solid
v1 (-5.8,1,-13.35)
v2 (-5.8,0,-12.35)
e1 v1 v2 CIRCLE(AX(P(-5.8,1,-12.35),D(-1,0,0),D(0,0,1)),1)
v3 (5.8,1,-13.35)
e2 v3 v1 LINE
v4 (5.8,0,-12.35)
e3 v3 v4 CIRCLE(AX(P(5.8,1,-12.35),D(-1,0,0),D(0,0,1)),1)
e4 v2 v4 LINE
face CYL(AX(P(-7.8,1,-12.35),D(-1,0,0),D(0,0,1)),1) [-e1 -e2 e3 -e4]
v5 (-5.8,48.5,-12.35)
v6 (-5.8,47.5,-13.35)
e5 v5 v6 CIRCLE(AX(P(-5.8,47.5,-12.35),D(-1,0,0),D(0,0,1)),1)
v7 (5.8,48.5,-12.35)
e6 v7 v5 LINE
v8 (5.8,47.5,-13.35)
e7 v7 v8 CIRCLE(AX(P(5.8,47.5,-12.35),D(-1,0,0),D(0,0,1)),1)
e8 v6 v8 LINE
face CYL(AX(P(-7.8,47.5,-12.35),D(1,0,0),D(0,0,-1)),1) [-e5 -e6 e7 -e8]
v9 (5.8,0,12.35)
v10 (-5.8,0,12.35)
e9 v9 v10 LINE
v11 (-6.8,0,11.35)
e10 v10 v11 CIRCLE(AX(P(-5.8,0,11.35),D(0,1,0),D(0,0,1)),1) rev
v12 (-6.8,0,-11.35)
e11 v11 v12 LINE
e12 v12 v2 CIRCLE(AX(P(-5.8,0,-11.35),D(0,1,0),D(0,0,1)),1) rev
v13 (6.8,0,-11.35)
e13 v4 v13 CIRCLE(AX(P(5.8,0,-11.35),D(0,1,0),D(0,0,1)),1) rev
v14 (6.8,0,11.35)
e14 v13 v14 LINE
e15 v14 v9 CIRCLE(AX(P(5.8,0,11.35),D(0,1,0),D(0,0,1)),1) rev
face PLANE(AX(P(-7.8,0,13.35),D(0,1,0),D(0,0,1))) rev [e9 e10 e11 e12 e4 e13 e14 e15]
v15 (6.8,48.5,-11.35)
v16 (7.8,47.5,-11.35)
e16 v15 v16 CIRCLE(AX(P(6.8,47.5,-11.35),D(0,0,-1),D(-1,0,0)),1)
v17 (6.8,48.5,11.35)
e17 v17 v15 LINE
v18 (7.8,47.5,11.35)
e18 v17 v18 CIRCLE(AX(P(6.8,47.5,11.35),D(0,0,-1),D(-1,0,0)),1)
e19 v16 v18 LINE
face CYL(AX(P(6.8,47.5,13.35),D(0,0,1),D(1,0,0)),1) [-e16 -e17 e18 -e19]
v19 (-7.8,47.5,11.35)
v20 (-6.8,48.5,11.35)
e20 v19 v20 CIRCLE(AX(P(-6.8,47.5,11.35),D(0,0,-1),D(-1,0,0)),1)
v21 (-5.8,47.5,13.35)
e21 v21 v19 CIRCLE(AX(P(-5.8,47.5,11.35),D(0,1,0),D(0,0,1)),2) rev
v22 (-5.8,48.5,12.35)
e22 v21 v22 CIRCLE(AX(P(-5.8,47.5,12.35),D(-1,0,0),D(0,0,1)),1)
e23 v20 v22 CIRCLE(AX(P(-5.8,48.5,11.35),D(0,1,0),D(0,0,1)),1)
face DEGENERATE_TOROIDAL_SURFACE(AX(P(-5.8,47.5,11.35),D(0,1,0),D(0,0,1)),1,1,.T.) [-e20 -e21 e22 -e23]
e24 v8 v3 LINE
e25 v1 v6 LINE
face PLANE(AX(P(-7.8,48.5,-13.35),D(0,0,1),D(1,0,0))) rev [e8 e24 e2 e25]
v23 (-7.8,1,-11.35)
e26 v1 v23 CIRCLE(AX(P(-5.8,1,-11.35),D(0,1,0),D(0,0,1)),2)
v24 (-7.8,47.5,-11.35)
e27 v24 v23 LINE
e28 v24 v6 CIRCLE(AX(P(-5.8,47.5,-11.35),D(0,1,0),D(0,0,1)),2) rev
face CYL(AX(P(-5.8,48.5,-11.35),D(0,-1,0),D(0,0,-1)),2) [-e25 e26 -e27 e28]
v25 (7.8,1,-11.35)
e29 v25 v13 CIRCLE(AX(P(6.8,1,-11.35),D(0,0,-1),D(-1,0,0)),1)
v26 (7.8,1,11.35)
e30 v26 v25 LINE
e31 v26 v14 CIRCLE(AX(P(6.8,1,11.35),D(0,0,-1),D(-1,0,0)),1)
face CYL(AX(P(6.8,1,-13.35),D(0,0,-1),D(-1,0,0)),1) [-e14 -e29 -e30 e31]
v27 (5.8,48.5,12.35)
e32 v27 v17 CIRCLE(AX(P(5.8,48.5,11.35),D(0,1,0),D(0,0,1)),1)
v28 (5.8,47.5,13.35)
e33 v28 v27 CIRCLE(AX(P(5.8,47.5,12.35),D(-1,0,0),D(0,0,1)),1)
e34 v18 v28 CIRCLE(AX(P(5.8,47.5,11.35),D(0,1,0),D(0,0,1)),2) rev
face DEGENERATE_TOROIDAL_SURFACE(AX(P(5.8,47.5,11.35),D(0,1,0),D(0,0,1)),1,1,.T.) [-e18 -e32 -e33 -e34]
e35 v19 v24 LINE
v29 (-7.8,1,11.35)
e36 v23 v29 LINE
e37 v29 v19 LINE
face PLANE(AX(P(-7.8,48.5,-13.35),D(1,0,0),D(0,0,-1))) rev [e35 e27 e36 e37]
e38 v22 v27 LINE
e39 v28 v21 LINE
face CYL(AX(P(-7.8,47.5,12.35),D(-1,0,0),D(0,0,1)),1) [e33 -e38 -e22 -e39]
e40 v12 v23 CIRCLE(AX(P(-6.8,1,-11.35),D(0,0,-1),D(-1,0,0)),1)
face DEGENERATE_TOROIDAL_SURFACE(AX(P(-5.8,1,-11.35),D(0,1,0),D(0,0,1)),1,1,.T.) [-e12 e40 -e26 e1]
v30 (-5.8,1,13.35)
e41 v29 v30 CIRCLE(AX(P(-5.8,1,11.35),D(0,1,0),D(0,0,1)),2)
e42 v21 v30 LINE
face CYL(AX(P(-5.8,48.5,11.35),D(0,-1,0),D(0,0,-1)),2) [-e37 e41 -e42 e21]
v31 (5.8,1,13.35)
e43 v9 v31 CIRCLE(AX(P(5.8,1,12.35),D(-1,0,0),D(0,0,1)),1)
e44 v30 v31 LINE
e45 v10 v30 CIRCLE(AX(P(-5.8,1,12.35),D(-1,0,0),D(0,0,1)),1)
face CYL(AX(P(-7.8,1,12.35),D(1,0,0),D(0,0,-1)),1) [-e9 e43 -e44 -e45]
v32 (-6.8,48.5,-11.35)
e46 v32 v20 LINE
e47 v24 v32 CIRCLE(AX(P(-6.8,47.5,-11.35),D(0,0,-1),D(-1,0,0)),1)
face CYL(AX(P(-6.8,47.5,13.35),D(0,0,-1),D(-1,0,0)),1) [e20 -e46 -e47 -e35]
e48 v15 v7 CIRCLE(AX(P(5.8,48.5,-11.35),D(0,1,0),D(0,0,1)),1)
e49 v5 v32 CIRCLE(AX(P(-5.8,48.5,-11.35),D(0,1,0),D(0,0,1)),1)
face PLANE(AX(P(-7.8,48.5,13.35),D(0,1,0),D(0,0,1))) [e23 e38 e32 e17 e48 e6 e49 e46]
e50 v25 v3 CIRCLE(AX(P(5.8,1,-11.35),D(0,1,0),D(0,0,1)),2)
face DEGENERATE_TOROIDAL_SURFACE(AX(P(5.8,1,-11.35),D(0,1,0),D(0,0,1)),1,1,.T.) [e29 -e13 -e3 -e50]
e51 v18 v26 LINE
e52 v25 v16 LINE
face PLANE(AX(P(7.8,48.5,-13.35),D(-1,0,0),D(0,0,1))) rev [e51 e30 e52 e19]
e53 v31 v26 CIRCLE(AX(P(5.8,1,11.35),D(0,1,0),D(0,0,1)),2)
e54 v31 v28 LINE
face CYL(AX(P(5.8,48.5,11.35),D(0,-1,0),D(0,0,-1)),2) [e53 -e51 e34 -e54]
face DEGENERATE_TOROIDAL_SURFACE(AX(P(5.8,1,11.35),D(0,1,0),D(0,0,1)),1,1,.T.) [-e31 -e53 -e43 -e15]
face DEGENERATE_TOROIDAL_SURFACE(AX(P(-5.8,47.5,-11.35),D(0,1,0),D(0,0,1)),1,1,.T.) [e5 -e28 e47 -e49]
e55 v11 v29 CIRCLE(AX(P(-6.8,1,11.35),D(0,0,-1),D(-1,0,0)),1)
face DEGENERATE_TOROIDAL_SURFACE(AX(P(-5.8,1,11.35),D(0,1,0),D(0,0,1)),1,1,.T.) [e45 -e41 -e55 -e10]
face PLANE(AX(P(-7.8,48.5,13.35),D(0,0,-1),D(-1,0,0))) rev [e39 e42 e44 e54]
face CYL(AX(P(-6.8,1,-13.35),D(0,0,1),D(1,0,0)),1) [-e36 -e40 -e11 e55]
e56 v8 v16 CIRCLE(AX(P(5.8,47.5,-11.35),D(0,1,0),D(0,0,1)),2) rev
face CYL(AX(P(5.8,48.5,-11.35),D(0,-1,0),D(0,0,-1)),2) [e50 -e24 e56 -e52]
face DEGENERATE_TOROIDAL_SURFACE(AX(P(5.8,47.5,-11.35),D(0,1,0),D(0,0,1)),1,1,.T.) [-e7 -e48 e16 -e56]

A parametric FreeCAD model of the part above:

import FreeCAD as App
import Part
import Sketcher


def edges_at(feature, points):
    """Names of the edges that pass closest to the given points."""
    edges = feature.Shape.Edges
    near = lambda p: min(range(len(edges)), key=lambda i: edges[i].distToShape(Part.Vertex(*p))[0])
    return sorted({f"Edge{near(p) + 1}" for p in points})

doc = App.newDocument("Part")
body = doc.addObject("PartDesign::Body", "Body")

# Sketch on XZ plane
sketch1 = body.newObject("Sketcher::SketchObject", "Sketch")
sketch1.AttachmentSupport = (doc.getObject("XZ_Plane"), [""])
sketch1.MapMode = "FlatFace"
sketch1.addGeometry(Part.LineSegment(App.Vector(-8, -13, 0), App.Vector(-8, 13, 0)), False)
sketch1.addGeometry(Part.LineSegment(App.Vector(-8, 13, 0), App.Vector(8, 13, 0)), False)
sketch1.addGeometry(Part.LineSegment(App.Vector(8, 13, 0), App.Vector(8, -13, 0)), False)
sketch1.addGeometry(Part.LineSegment(App.Vector(8, -13, 0), App.Vector(-8, -13, 0)), False)
sketch1.addConstraint(Sketcher.Constraint("Coincident", 0, 2, 1, 1))
sketch1.addConstraint(Sketcher.Constraint("Coincident", 1, 2, 2, 1))
sketch1.addConstraint(Sketcher.Constraint("Coincident", 2, 2, 3, 1))
sketch1.addConstraint(Sketcher.Constraint("Coincident", 3, 2, 0, 1))
sketch1.addConstraint(Sketcher.Constraint("Vertical", 0))
sketch1.addConstraint(Sketcher.Constraint("Horizontal", 1))
sketch1.addConstraint(Sketcher.Constraint("Vertical", 2))
sketch1.addConstraint(Sketcher.Constraint("Horizontal", 3))
sketch1.addConstraint(Sketcher.Constraint("Symmetric", 0, 2, 2, 2, -1, 1))
sketch1.addConstraint(Sketcher.Constraint("DistanceX", 1, 1, 1, 2, 15.6))
sketch1.addConstraint(Sketcher.Constraint("DistanceY", 0, 1, 0, 2, 26.7))
pad1 = body.newObject("PartDesign::Pad", "Pad")
pad1.Profile = sketch1
pad1.Length = 48.5
pad1.Reversed = True
doc.recompute()

fillet = body.newObject("PartDesign::Fillet", "Fillet")
fillet.Base = (pad1, edges_at(pad1, [
    (-7.8, 24.25, -13.35),
    (7.8, 24.25, -13.35),
    (7.8, 24.25, 13.35),
    (-7.8, 24.25, 13.35),
]))
fillet.Radius = 2
doc.recompute()

fillet2 = body.newObject("PartDesign::Fillet", "Fillet001")
fillet2.Base = (fillet, edges_at(fillet, [
    (0, 0, 13.35),
    (0, 48.5, 13.35),
    (-7.8, 0, 0),
    (0, 0, -13.35),
    (7.8, 0, 0),
    (7.214, 0, 12.764),
    (7.214, 0, -12.764),
    (-7.214, 0, -12.764),
    (-7.214, 0, 12.764),
    (-7.8, 48.5, 0),
    (7.8, 48.5, 0),
    (0, 48.5, -13.35),
    (7.214, 48.5, 12.764),
    (7.214, 48.5, -12.764),
    (-7.214, 48.5, -12.764),
    (-7.214, 48.5, 12.764),
]))
fillet2.Radius = 1

doc.recompute()
